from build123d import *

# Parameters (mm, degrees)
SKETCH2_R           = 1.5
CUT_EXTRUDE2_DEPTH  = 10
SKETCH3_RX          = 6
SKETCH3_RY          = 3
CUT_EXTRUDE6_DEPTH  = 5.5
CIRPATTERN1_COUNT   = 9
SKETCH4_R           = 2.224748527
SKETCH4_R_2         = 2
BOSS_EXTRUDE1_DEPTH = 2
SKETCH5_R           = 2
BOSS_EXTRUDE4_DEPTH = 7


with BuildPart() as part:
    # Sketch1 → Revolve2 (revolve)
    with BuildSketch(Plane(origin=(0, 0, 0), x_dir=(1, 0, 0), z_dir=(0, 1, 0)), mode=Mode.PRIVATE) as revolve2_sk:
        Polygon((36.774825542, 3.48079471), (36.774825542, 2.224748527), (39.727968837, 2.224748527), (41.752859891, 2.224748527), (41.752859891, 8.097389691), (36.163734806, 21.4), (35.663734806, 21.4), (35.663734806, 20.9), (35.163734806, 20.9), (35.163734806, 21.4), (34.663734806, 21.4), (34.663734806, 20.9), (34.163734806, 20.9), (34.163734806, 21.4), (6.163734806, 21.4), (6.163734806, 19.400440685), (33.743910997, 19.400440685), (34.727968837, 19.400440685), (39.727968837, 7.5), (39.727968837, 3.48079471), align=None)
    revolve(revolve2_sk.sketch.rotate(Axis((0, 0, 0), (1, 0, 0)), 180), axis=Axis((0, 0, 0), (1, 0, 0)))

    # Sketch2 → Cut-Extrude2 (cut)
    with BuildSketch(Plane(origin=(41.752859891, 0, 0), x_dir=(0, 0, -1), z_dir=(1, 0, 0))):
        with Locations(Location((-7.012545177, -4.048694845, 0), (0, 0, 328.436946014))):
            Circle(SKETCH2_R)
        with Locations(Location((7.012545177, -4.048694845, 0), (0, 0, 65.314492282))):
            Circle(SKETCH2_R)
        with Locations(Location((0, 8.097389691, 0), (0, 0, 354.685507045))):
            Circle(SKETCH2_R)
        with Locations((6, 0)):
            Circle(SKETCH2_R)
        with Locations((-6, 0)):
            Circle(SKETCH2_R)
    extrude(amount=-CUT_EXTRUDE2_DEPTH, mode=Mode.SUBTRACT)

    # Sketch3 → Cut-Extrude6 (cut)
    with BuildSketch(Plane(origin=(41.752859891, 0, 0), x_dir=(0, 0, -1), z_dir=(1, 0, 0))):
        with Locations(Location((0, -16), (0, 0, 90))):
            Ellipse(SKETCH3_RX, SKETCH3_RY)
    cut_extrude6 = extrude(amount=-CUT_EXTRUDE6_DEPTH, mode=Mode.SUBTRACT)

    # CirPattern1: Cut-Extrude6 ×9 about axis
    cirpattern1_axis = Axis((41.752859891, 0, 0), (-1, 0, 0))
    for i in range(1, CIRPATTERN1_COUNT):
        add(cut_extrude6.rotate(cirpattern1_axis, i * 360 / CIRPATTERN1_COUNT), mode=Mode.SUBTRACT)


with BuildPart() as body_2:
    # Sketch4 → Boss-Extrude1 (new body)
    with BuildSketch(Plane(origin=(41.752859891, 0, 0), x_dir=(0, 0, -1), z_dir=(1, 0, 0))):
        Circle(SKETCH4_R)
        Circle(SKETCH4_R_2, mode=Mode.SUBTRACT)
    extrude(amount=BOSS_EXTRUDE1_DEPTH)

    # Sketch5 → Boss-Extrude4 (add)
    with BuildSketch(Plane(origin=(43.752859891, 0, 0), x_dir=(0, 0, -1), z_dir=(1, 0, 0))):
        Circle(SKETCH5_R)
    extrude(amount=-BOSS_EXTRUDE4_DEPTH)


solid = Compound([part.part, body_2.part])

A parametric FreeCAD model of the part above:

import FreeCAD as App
import Part
import Sketcher

V = App.Vector


def add_polygon(sketch, points):
    """Adds a closed chain of lines whose ends are joined by coincident constraints."""
    first, n = sketch.GeometryCount, len(points)
    for a, b in zip(points, points[1:] + points[:1]):
        sketch.addGeometry(Part.LineSegment(App.Vector(*a, 0), App.Vector(*b, 0)), False)
    for i in range(n):
        sketch.addConstraint(Sketcher.Constraint("Coincident", first + i, 2, first + (i + 1) % n, 1))

doc = App.newDocument("Part")
body = doc.addObject("PartDesign::Body", "Body")

# Sketch on XZ plane
sketch1 = doc.addObject("Sketcher::SketchObject", "Sketch")
body.addObject(sketch1)
sketch1.AttachmentSupport = (doc.XZ_Plane, [""])
sketch1.MapMode = "FlatFace"
add_polygon(sketch1, [(36.8, -3.5), (36.8, -2.2), (41.8, -2.2), (41.8, -8.1), (36.2, -21.4), (35.7, -21.4), (35.7, -20.9), (35.2, -20.9), (35.2, -21.4), (34.7, -21.4), (34.7, -20.9), (34.2, -20.9), (34.2, -21.4), (6.2, -21.4), (6.2, -19.4), (34.7, -19.4), (39.7, -7.5), (39.7, -3.5)])  # lines 0-17
sketch1.addConstraint([
    Sketcher.Constraint("Vertical", 0),
    Sketcher.Constraint("Horizontal", 1),
    Sketcher.Constraint("Vertical", 2),
    Sketcher.Constraint("Horizontal", 4),
    Sketcher.Constraint("Vertical", 5),
    Sketcher.Constraint("Horizontal", 6),
    Sketcher.Constraint("Vertical", 7),
    Sketcher.Constraint("Horizontal", 8),
    Sketcher.Constraint("Vertical", 9),
    Sketcher.Constraint("Horizontal", 10),
    Sketcher.Constraint("Vertical", 11),
    Sketcher.Constraint("Horizontal", 12),
    Sketcher.Constraint("Vertical", 13),
    Sketcher.Constraint("Horizontal", 14),
    Sketcher.Constraint("Vertical", 16),
    Sketcher.Constraint("Horizontal", 17),
    Sketcher.Constraint("Parallel", 3, 15),
    Sketcher.Constraint("Horizontal", 4, 2, 7, 2),
    Sketcher.Constraint("Horizontal", 6, 2, 9, 2),
    Sketcher.Constraint("Horizontal", 8, 2, 11, 2),
    Sketcher.Constraint("Equal", 4, 6),
    Sketcher.Constraint("Equal", 6, 8),
    Sketcher.Constraint("Equal", 8, 10),
    Sketcher.Constraint("Equal", 10, 5),
    Sketcher.Constraint("DistanceX", 12, 2, 12, 1, 28.0),
    Sketcher.Constraint("DistanceX", 4, 2, 4, 1, 0.5),
    Sketcher.Constraint("DistanceX", 14, 2, 15, 2, 5.0),
    Sketcher.Constraint("DistanceY", 3, 2, -1, 1, 21.4),
    Sketcher.Constraint("DistanceY", 15, 2, -1, 1, 7.5),
    Sketcher.Constraint("DistanceY", 2, 2, 2, 1, 5.872641),
    Sketcher.Constraint("DistanceY", 13, 1, 13, 2, 1.999559),
    Sketcher.Constraint("Distance", 3, 14.42906),
    Sketcher.Constraint("DistanceX", 1, 1, 1, 2, 4.978034),
    Sketcher.Constraint("DistanceX", 14, 1, 14, 2, 28.564234),
    Sketcher.Constraint("DistanceY", 0, 1, 0, 2, 1.256046),
    Sketcher.Constraint("DistanceX", -1, 1, 1, 2, 41.75286),
])
revolution = doc.addObject("PartDesign::Revolution", "Revolution")
body.addObject(revolution)
revolution.Profile = sketch1
revolution.ReferenceAxis = (sketch1, ["H_Axis"])
revolution.Angle = 360

# Sketch on YZ plane
sketch2 = doc.addObject("Sketcher::SketchObject", "Sketch001")
body.addObject(sketch2)
sketch2.AttachmentSupport = (doc.YZ_Plane, [""])
sketch2.MapMode = "FlatFace"
sketch2.AttachmentOffset = App.Placement(V(0, 0, 41.75286), App.Rotation())
sketch2.addGeometry([
    Part.Circle(V(-4, 7, 0), V(0, 0, 1), 1.5),  # 0
    Part.Circle(V(-4, -7, 0), V(0, 0, 1), 1.5),  # 1
    Part.Circle(V(8.1, 0, 0), V(0, 0, 1), 1.5),  # 2
    Part.Circle(V(0, -6, 0), V(0, 0, 1), 1.5),  # 3
    Part.Circle(V(0, 6, 0), V(0, 0, 1), 1.5),  # 4
], False)
sketch2.addConstraint([
    Sketcher.Constraint("Equal", 0, 1),
    Sketcher.Constraint("Equal", 1, 2),
    Sketcher.Constraint("Equal", 2, 3),
    Sketcher.Constraint("Equal", 3, 4),
    Sketcher.Constraint("Symmetric", 3, 3, 4, 3, -1, 1),
    Sketcher.Constraint("Symmetric", 0, 3, 1, 3, -1),
    Sketcher.Constraint("PointOnObject", 2, 3, -1),
    Sketcher.Constraint("PointOnObject", 3, 3, -2),
    Sketcher.Constraint("Diameter", 0, 3.0),
    Sketcher.Constraint("DistanceY", 3, 3, -1, 1, 6.0),
    Sketcher.Constraint("DistanceX", -1, 1, 2, 3, 8.09739),
    Sketcher.Constraint("DistanceY", 1, 3, 0, 3, 14.02509),
    Sketcher.Constraint("DistanceX", 0, 3, -1, 1, 4.048695),
])
pocket1 = doc.addObject("PartDesign::Pocket", "Pocket")
body.addObject(pocket1)
pocket1.Profile = sketch2
pocket1.Length = 10

# Sketch on YZ plane
sketch3 = doc.addObject("Sketcher::SketchObject", "Sketch002")
body.addObject(sketch3)
sketch3.AttachmentSupport = (doc.YZ_Plane, [""])
sketch3.MapMode = "FlatFace"
sketch3.AttachmentOffset = App.Placement(V(0, 0, 41.75286), App.Rotation())
sketch3.addGeometry(Part.Ellipse(V(-10, 0, 0), V(-16, 3, 0), V(-16, 0, 0)), False)
sketch3.addConstraint(Sketcher.Constraint("Block", 0))
pocket2 = doc.addObject("PartDesign::Pocket", "Pocket001")
body.addObject(pocket2)
pocket2.Profile = sketch3
pocket2.Length = 5.5
doc.recompute()

polarpattern = doc.addObject("PartDesign::PolarPattern", "PolarPattern")
body.addObject(polarpattern)
polarpattern.Originals = [pocket2]
polarpattern.Axis = (doc.X_Axis, [""])
polarpattern.Angle = 360
polarpattern.Occurrences = 9
body.Tip = polarpattern
body2 = doc.addObject("PartDesign::Body", "Body001")

# Sketch on YZ plane
sketch4 = doc.addObject("Sketcher::SketchObject", "Sketch003")
body2.addObject(sketch4)
sketch4.AttachmentSupport = (doc.getObject("YZ_Plane001"), [""])
sketch4.MapMode = "FlatFace"
sketch4.AttachmentOffset = App.Placement(V(0, 0, 41.75286), App.Rotation())
sketch4.addGeometry([
    Part.Circle(V(0, 0, 0), V(0, 0, 1), 2.2),
    Part.Circle(V(0, 0, 0), V(0, 0, 1), 2),
], False)
sketch4.addConstraint([
    Sketcher.Constraint("Coincident", 0, 3, -1, 1),
    Sketcher.Constraint("Coincident", 1, 3, -1, 1),
    Sketcher.Constraint("Diameter", 1, 4.0),
    Sketcher.Constraint("Diameter", 0, 4.449497),
])
pad1 = doc.addObject("PartDesign::Pad", "Pad")
body2.addObject(pad1)
pad1.Profile = sketch4
pad1.Length = 2

# Sketch on YZ plane
sketch5 = doc.addObject("Sketcher::SketchObject", "Sketch004")
body2.addObject(sketch5)
sketch5.AttachmentSupport = (doc.getObject("YZ_Plane001"), [""])
sketch5.MapMode = "FlatFace"
sketch5.AttachmentOffset = App.Placement(V(0, 0, 43.75286), App.Rotation())
sketch5.addGeometry(Part.Circle(V(0, 0, 0), V(0, 0, 1), 2), False)
sketch5.addConstraint([
    Sketcher.Constraint("Coincident", 0, 3, -1, 1),
    Sketcher.Constraint("Diameter", 0, 4.0),
])
pad2 = doc.addObject("PartDesign::Pad", "Pad001")
body2.addObject(pad2)
pad2.Profile = sketch5
pad2.Length = 7
pad2.Reversed = True

doc.recompute()
